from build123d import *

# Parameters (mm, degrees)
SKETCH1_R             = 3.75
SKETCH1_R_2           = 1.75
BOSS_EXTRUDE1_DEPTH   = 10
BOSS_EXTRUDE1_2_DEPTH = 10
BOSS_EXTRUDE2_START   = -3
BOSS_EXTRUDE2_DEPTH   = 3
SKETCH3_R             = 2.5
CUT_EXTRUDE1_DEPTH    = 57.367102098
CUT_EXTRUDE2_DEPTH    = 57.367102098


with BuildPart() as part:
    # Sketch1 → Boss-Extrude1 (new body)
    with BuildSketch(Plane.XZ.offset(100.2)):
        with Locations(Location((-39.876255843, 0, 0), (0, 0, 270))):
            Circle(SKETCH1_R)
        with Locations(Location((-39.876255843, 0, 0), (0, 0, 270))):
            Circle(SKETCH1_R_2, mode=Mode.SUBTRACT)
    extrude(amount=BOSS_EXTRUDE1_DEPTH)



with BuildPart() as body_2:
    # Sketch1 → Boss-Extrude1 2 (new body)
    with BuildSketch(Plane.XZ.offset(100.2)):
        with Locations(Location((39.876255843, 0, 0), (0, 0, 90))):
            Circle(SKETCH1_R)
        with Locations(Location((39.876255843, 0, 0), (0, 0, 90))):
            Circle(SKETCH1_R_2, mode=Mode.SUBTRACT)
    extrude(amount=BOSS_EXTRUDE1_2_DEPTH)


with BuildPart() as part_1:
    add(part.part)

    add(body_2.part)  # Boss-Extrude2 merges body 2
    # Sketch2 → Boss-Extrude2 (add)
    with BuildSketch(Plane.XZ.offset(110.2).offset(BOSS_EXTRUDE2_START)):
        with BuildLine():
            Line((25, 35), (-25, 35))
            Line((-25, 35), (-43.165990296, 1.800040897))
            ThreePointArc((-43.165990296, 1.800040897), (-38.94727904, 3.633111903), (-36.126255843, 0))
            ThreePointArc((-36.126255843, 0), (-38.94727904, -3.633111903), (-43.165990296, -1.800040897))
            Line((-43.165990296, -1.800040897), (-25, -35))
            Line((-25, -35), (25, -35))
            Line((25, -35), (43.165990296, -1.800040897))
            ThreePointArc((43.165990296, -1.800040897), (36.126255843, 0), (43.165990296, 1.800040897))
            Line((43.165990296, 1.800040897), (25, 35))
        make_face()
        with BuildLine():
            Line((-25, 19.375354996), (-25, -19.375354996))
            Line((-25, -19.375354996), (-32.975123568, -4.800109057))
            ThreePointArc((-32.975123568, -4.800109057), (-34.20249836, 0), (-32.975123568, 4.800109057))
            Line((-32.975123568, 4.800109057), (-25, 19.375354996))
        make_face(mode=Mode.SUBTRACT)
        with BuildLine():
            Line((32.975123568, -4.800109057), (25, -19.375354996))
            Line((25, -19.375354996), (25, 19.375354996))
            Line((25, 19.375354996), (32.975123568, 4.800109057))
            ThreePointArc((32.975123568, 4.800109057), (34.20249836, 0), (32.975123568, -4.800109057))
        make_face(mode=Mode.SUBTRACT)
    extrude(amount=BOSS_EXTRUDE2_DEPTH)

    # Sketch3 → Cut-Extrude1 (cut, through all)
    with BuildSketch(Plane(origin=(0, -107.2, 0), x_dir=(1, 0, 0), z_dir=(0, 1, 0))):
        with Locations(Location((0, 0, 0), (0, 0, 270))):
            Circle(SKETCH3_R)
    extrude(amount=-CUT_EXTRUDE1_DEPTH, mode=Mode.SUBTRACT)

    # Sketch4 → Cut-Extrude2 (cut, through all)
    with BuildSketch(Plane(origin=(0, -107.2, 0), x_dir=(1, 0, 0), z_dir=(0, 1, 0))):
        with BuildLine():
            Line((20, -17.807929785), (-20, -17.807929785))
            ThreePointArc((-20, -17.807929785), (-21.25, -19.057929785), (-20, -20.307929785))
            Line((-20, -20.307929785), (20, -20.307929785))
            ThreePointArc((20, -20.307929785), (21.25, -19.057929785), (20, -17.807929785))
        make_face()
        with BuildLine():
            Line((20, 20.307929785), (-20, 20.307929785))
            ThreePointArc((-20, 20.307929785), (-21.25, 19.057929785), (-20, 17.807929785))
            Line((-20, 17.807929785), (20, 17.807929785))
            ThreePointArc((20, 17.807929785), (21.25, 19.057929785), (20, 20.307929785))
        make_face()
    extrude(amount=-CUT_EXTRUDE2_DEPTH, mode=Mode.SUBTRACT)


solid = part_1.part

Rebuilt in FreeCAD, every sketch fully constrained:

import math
import FreeCAD as App
import Part
import Sketcher

V = App.Vector
Q = App.Units.Quantity

doc = App.newDocument("Part")
params = doc.addObject("Spreadsheet::Sheet", "Params")
for row, (alias, value) in enumerate([
    ("sketch1_diameter", "7.5 mm"),
    ("sketch1_diameter2", "3.5 mm"),
    ("pad1_length", "10 mm"),
    ("sketch2_diameter", "7.5 mm"),
    ("sketch2_diameter2", "3.5 mm"),
    ("pad2_length", "10 mm"),
    ("sketch3_radius", "10 mm"),
    ("sketch3_width", "50 mm"),
    ("sketch3_radius2", "3.75 mm"),
    ("pad3_length", "3 mm"),
    ("sketch4_diameter", "5 mm"),
    ("sketch5_width", "40 mm"),
    ("sketch5_radius", "1.25 mm"),
], start=1):
    params.set(f"A{row}", alias)
    params.set(f"B{row}", "=" + value)
    params.setAlias(f"B{row}", alias)

body = doc.addObject("PartDesign::Body", "Body")

# Sketch on XZ plane
sketch1 = body.newObject("Sketcher::SketchObject", "Sketch")
sketch1.AttachmentSupport = (doc.getObject("XZ_Plane"), [""])
sketch1.MapMode = "FlatFace"
sketch1.AttachmentOffset = App.Placement(V(0, 0, 100.2), App.Rotation())
sketch1.addGeometry([
    Part.Circle(V(-39.876256, 0, 0), V(0, 0, 1), 3.75),
    Part.Circle(V(-39.876256, 0, 0), V(0, 0, 1), 1.75),
], False)
sketch1.addConstraint([
    Sketcher.Constraint("Coincident", 1, 3, 0, 3),
    Sketcher.Constraint("PointOnObject", 0, 3, -1),
    Sketcher.Constraint("Diameter", 0, Q("7.5 mm")),
    Sketcher.Constraint("Diameter", 1, Q("3.5 mm")),
    Sketcher.Constraint("DistanceX", 0, 3, -1, 1, Q("39.876256 mm")),
])
sketch1.setExpression("Constraints[2]", "Params.sketch1_diameter")
sketch1.setExpression("Constraints[3]", "Params.sketch1_diameter2")
pad1 = body.newObject("PartDesign::Pad", "Pad")
pad1.Profile = sketch1
pad1.setExpression("Length", "Params.pad1_length")
body2 = doc.addObject("PartDesign::Body", "Body001")

# Sketch on XZ plane
sketch2 = body2.newObject("Sketcher::SketchObject", "Sketch001")
sketch2.AttachmentSupport = (doc.getObject("XZ_Plane001"), [""])
sketch2.MapMode = "FlatFace"
sketch2.AttachmentOffset = App.Placement(V(0, 0, 100.2), App.Rotation())
sketch2.addGeometry([
    Part.Circle(V(39.876256, 0, 0), V(0, 0, 1), 3.75),
    Part.Circle(V(39.876256, 0, 0), V(0, 0, 1), 1.75),
], False)
sketch2.addConstraint([
    Sketcher.Constraint("Coincident", 1, 3, 0, 3),
    Sketcher.Constraint("PointOnObject", 0, 3, -1),
    Sketcher.Constraint("Diameter", 0, Q("7.5 mm")),
    Sketcher.Constraint("Diameter", 1, Q("3.5 mm")),
    Sketcher.Constraint("DistanceX", -1, 1, 0, 3, Q("39.876256 mm")),
])
sketch2.setExpression("Constraints[2]", "Params.sketch2_diameter")
sketch2.setExpression("Constraints[3]", "Params.sketch2_diameter2")
pad2 = body2.newObject("PartDesign::Pad", "Pad001")
pad2.Profile = sketch2
pad2.setExpression("Length", "Params.pad2_length")
body.AllowCompound = True
doc.recompute()

boolean = body.newObject("PartDesign::Boolean", "Boolean")
boolean.Type = "Fuse"
boolean.addObjects([body2])

# Sketch on XZ plane
sketch3 = body.newObject("Sketcher::SketchObject", "Sketch002")
sketch3.AttachmentSupport = (doc.getObject("XZ_Plane"), [""])
sketch3.MapMode = "FlatFace"
sketch3.AttachmentOffset = App.Placement(V(0, 0, 107.2), App.Rotation())
sketch3.addGeometry([
    Part.LineSegment(V(25, 35, 0), V(-25, 35, 0)),  # 0
    Part.LineSegment(V(-25, 35, 0), V(-43.16599, 1.800041, 0)),  # 1
    Part.ArcOfCircle(Part.Circle(V(-39.876256, 0, 0), V(0, 0, 1), 3.75), math.radians(0), math.radians(151.313886)),  # 2
    Part.ArcOfCircle(Part.Circle(V(-39.876256, 0, 0), V(0, 0, 1), 3.75), math.radians(-151.313886), math.radians(0)),  # 3
    Part.LineSegment(V(-43.16599, -1.800041, 0), V(-25, -35, 0)),  # 4
    Part.LineSegment(V(-25, -35, 0), V(25, -35, 0)),  # 5
    Part.LineSegment(V(25, -35, 0), V(43.16599, -1.800041, 0)),  # 6
    Part.ArcOfCircle(Part.Circle(V(39.876256, 0, 0), V(0, 0, 1), 3.75), math.radians(28.686114), math.radians(331.313886)),  # 7
    Part.LineSegment(V(43.16599, 1.800041, 0), V(25, 35, 0)),  # 8
    Part.LineSegment(V(-32.975124, 4.800109, 0), V(-25, 19.375355, 0)),  # 9
    Part.LineSegment(V(-25, 19.375355, 0), V(-25, -19.375355, 0)),  # 10
    Part.LineSegment(V(-25, -19.375355, 0), V(-32.975124, -4.800109, 0)),  # 11
    Part.ArcOfCircle(Part.Circle(V(-24.202498, 0, 0), V(0, 0, 1), 10), math.radians(151.313886), math.radians(208.686114)),  # 12
    Part.ArcOfCircle(Part.Circle(V(24.202498, 0, 0), V(0, 0, 1), 10), math.radians(-28.686114), math.radians(28.686114)),  # 13
    Part.LineSegment(V(32.975124, -4.800109, 0), V(25, -19.375355, 0)),  # 14
    Part.LineSegment(V(25, -19.375355, 0), V(25, 19.375355, 0)),  # 15
    Part.LineSegment(V(25, 19.375355, 0), V(32.975124, 4.800109, 0)),  # 16
], False)
sketch3.addConstraint([
    Sketcher.Constraint("Coincident", 0, 2, 1, 1),
    Sketcher.Constraint("Tangent", 1, 2, 2, 2),
    Sketcher.Constraint("Tangent", 2, 1, 3, 2),
    Sketcher.Constraint("Tangent", 3, 1, 4, 1),
    Sketcher.Constraint("Coincident", 4, 2, 5, 1),
    Sketcher.Constraint("Coincident", 5, 2, 6, 1),
    Sketcher.Constraint("Tangent", 6, 2, 7, 2),
    Sketcher.Constraint("Tangent", 7, 1, 8, 1),
    Sketcher.Constraint("Coincident", 8, 2, 0, 1),
    Sketcher.Constraint("Coincident", 9, 2, 10, 1),
    Sketcher.Constraint("Coincident", 10, 2, 11, 1),
    Sketcher.Constraint("Tangent", 11, 2, 12, 2),
    Sketcher.Constraint("Tangent", 12, 1, 9, 1),
    Sketcher.Constraint("Tangent", 13, 1, 14, 1),
    Sketcher.Constraint("Coincident", 14, 2, 15, 1),
    Sketcher.Constraint("Coincident", 15, 2, 16, 1),
    Sketcher.Constraint("Tangent", 16, 2, 13, 2),
    Sketcher.Constraint("Horizontal", 0),
    Sketcher.Constraint("Horizontal", 5),
    Sketcher.Constraint("Vertical", 10),
    Sketcher.Constraint("Vertical", 15),
    Sketcher.Constraint("Equal", 2, 3),
    Sketcher.Constraint("Equal", 3, 7),
    Sketcher.Constraint("Equal", 12, 13),
    Sketcher.Constraint("Symmetric", 2, 3, 7, 3, -1, 1),
    Sketcher.Constraint("Symmetric", 12, 3, 13, 3, -1, 1),
    Sketcher.Constraint("Symmetric", 0, 2, 5, 2, -1, 1),
    Sketcher.Constraint("Symmetric", 9, 2, 14, 2, -1, 1),
    Sketcher.Constraint("Symmetric", 3, 1, 6, 2, -2),
    Sketcher.Constraint("Symmetric", 11, 2, 13, 1, -2),
    Sketcher.Constraint("PointOnObject", 2, 1, -1),
    Sketcher.Constraint("Parallel", 4, 8),
    Sketcher.Constraint("Parallel", 6, 9),
    Sketcher.Constraint("Parallel", 11, 16),
    Sketcher.Constraint("Vertical", 4, 2, 9, 2),
    Sketcher.Constraint("Radius", 12, Q("10 mm")),
    Sketcher.Constraint("DistanceX", 0, 2, 0, 1, Q("50 mm")),
    Sketcher.Constraint("Radius", 2, Q("3.75 mm")),
    Sketcher.Constraint("DistanceY", -1, 1, 0, 2, Q("35 mm")),
    Sketcher.Constraint("DistanceY", 10, 2, 10, 1, Q("38.75071 mm")),
    Sketcher.Constraint("DistanceX", 12, 3, -1, 1, Q("24.202498 mm")),
])
sketch3.setExpression("Constraints[35]", "Params.sketch3_radius")
sketch3.setExpression("Constraints[36]", "Params.sketch3_width")
sketch3.setExpression("Constraints[37]", "Params.sketch3_radius2")
pad3 = body.newObject("PartDesign::Pad", "Pad002")
pad3.Profile = sketch3
pad3.setExpression("Length", "Params.pad3_length")

# Sketch on XZ plane
sketch4 = body.newObject("Sketcher::SketchObject", "Sketch003")
sketch4.AttachmentSupport = (doc.getObject("XZ_Plane"), [""])
sketch4.MapMode = "FlatFace"
sketch4.AttachmentOffset = App.Placement(V(0, 0, 107.2), App.Rotation())
sketch4.addGeometry(Part.Circle(V(0, 0, 0), V(0, 0, 1), 2.5), False)
sketch4.addConstraint([
    Sketcher.Constraint("Coincident", 0, 3, -1, 1),
    Sketcher.Constraint("Diameter", 0, Q("5 mm")),
])
sketch4.setExpression("Constraints[1]", "Params.sketch4_diameter")
pocket1 = body.newObject("PartDesign::Pocket", "Pocket")
pocket1.Profile = sketch4
pocket1.Type = "ThroughAll"
pocket1.Reversed = True

# Sketch on XZ plane
sketch5 = body.newObject("Sketcher::SketchObject", "Sketch004")
sketch5.AttachmentSupport = (doc.getObject("XZ_Plane"), [""])
sketch5.MapMode = "FlatFace"
sketch5.AttachmentOffset = App.Placement(V(0, 0, 107.2), App.Rotation())
sketch5.addGeometry([
    Part.LineSegment(V(20, 17.80793, 0), V(-20, 17.80793, 0)),  # 0
    Part.ArcOfCircle(Part.Circle(V(-20, 19.05793, 0), V(0, 0, 1), 1.25), math.radians(90), math.radians(270)),  # 1
    Part.LineSegment(V(-20, 20.30793, 0), V(20, 20.30793, 0)),  # 2
    Part.ArcOfCircle(Part.Circle(V(20, 19.05793, 0), V(0, 0, 1), 1.25), math.radians(-90), math.radians(90)),  # 3
    Part.LineSegment(V(20, -20.30793, 0), V(-20, -20.30793, 0)),  # 4
    Part.ArcOfCircle(Part.Circle(V(-20, -19.05793, 0), V(0, 0, 1), 1.25), math.radians(90), math.radians(270)),  # 5
    Part.LineSegment(V(-20, -17.80793, 0), V(20, -17.80793, 0)),  # 6
    Part.ArcOfCircle(Part.Circle(V(20, -19.05793, 0), V(0, 0, 1), 1.25), math.radians(-90), math.radians(90)),  # 7
], False)
sketch5.addConstraint([
    Sketcher.Constraint("Tangent", 0, 2, 1, 2),
    Sketcher.Constraint("Tangent", 1, 1, 2, 1),
    Sketcher.Constraint("Tangent", 2, 2, 3, 2),
    Sketcher.Constraint("Tangent", 3, 1, 0, 1),
    Sketcher.Constraint("Tangent", 4, 2, 5, 2),
    Sketcher.Constraint("Tangent", 5, 1, 6, 1),
    Sketcher.Constraint("Tangent", 6, 2, 7, 2),
    Sketcher.Constraint("Tangent", 7, 1, 4, 1),
    Sketcher.Constraint("Horizontal", 0),
    Sketcher.Constraint("Horizontal", 2),
    Sketcher.Constraint("Horizontal", 4),
    Sketcher.Constraint("Horizontal", 6),
    Sketcher.Constraint("Equal", 3, 5),
    Sketcher.Constraint("Symmetric", 3, 3, 5, 3, -1, 1),
    Sketcher.Constraint("Vertical", 1, 3, 5, 3),
    Sketcher.Constraint("Vertical", 3, 3, 7, 3),
    Sketcher.Constraint("DistanceX", 0, 2, 0, 1, Q("40 mm")),
    Sketcher.Constraint("Radius", 1, Q("1.25 mm")),
    Sketcher.Constraint("DistanceY", -1, 1, 1, 3, Q("19.05793 mm")),
])
sketch5.setExpression("Constraints[16]", "Params.sketch5_width")
sketch5.setExpression("Constraints[17]", "Params.sketch5_radius")
pocket2 = body.newObject("PartDesign::Pocket", "Pocket001")
pocket2.Profile = sketch5
pocket2.Type = "ThroughAll"
pocket2.Reversed = True

doc.recompute()
